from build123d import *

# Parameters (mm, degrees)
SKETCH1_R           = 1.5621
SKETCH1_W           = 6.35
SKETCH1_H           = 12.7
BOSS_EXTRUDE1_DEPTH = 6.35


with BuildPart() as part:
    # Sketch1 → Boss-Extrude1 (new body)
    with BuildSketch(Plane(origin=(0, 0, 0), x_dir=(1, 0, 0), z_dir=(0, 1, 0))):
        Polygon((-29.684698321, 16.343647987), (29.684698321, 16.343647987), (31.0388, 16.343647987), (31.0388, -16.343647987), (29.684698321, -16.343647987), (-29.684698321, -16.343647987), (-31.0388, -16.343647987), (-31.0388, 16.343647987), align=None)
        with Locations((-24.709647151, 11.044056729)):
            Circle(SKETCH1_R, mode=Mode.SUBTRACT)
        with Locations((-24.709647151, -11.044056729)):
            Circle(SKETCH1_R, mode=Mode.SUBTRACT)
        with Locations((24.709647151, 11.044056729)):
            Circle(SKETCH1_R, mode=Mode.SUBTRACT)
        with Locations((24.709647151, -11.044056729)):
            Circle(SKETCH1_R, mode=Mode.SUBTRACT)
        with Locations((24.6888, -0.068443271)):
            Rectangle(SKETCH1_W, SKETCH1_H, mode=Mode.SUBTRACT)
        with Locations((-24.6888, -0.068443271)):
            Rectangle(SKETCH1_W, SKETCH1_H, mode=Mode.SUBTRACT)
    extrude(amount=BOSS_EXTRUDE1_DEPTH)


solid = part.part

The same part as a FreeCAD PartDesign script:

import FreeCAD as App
import Part
import Sketcher
from FreeCAD import Vector
Q = App.Units.Quantity


def add_polygon(sketch, points):
    """Adds a closed chain of lines whose ends are joined by coincident constraints."""
    first, n = sketch.GeometryCount, len(points)
    for a, b in zip(points, points[1:] + points[:1]):
        sketch.addGeometry(Part.LineSegment(App.Vector(*a, 0), App.Vector(*b, 0)), False)
    for i in range(n):
        sketch.addConstraint(Sketcher.Constraint("Coincident", first + i, 2, first + (i + 1) % n, 1))

doc = App.newDocument("Part")
body = doc.addObject("PartDesign::Body", "Body")

# Sketch on XZ plane
sketch1 = body.newObject("Sketcher::SketchObject", "Sketch")
sketch1.AttachmentSupport = (doc.getObject("XZ_Plane"), [""])
sketch1.MapMode = "FlatFace"
add_polygon(sketch1, [(31, -16.3), (-31, -16.3), (-31, 16.3), (31, 16.3)])  # lines 0-3
sketch1.addGeometry(Part.Circle(Vector(24.7, 11, 0), Vector(0, 0, 1), 1.6), False)  # 4
add_polygon(sketch1, [(21.5, 6.4), (21.5, -6.3), (27.9, -6.3), (27.9, 6.4)])  # lines 5-8
sketch1.addGeometry(Part.Circle(Vector(-24.7, 11, 0), Vector(0, 0, 1), 1.6), False)  # 9
add_polygon(sketch1, [(-27.9, 6.4), (-27.9, -6.3), (-21.5, -6.3), (-21.5, 6.4)])  # lines 10-13
sketch1.addGeometry(Part.Circle(Vector(24.7, -11, 0), Vector(0, 0, 1), 1.6), False)  # 14
sketch1.addGeometry(Part.Circle(Vector(-24.7, -11, 0), Vector(0, 0, 1), 1.6), False)  # 15
sketch1.addConstraint(Sketcher.Constraint("Horizontal", 0))
sketch1.addConstraint(Sketcher.Constraint("Vertical", 1))
sketch1.addConstraint(Sketcher.Constraint("Horizontal", 2))
sketch1.addConstraint(Sketcher.Constraint("Vertical", 3))
sketch1.addConstraint(Sketcher.Constraint("Vertical", 5))
sketch1.addConstraint(Sketcher.Constraint("Horizontal", 6))
sketch1.addConstraint(Sketcher.Constraint("Vertical", 7))
sketch1.addConstraint(Sketcher.Constraint("Horizontal", 8))
sketch1.addConstraint(Sketcher.Constraint("Vertical", 10))
sketch1.addConstraint(Sketcher.Constraint("Horizontal", 11))
sketch1.addConstraint(Sketcher.Constraint("Vertical", 12))
sketch1.addConstraint(Sketcher.Constraint("Horizontal", 13))
sketch1.addConstraint(Sketcher.Constraint("Equal", 4, 9))
sketch1.addConstraint(Sketcher.Constraint("Equal", 9, 14))
sketch1.addConstraint(Sketcher.Constraint("Equal", 14, 15))
sketch1.addConstraint(Sketcher.Constraint("Symmetric", 9, 3, 14, 3, -1, 1))
sketch1.addConstraint(Sketcher.Constraint("Symmetric", 4, 3, 15, 3, -1, 1))
sketch1.addConstraint(Sketcher.Constraint("Symmetric", 0, 2, 2, 2, -1, 1))
sketch1.addConstraint(Sketcher.Constraint("Symmetric", 4, 3, 9, 3, -2))
sketch1.addConstraint(Sketcher.Constraint("Symmetric", 6, 2, 10, 2, -2))
sketch1.addConstraint(Sketcher.Constraint("Symmetric", 8, 2, 12, 2, -2))
sketch1.addConstraint(Sketcher.Constraint("Diameter", 4, Q("0.123 in")))
sketch1.addConstraint(Sketcher.Constraint("DistanceY", 5, 2, 5, 1, Q("0.5 in")))
sketch1.addConstraint(Sketcher.Constraint("DistanceX", 6, 1, 6, 2, Q("0.25 in")))
sketch1.addConstraint(Sketcher.Constraint("DistanceX", 0, 2, 0, 1, Q("2.444 in")))
sketch1.addConstraint(Sketcher.Constraint("DistanceX", -1, 1, 5, 2, Q("0.847 in")))
sketch1.addConstraint(Sketcher.Constraint("DistanceY", 14, 3, 5, 2, Q("0.1875 in")))
sketch1.addConstraint(Sketcher.Constraint("DistanceY", 1, 1, 1, 2, Q("32.687296 mm")))
sketch1.addConstraint(Sketcher.Constraint("DistanceY", 0, 2, 15, 3, Q("5.299591 mm")))
sketch1.addConstraint(Sketcher.Constraint("DistanceX", -1, 1, 4, 3, Q("24.709647 mm")))
pad1 = body.newObject("PartDesign::Pad", "Pad")
pad1.Profile = sketch1
pad1.Length = Q("0.25 in")
pad1.Reversed = True

doc.recompute()
